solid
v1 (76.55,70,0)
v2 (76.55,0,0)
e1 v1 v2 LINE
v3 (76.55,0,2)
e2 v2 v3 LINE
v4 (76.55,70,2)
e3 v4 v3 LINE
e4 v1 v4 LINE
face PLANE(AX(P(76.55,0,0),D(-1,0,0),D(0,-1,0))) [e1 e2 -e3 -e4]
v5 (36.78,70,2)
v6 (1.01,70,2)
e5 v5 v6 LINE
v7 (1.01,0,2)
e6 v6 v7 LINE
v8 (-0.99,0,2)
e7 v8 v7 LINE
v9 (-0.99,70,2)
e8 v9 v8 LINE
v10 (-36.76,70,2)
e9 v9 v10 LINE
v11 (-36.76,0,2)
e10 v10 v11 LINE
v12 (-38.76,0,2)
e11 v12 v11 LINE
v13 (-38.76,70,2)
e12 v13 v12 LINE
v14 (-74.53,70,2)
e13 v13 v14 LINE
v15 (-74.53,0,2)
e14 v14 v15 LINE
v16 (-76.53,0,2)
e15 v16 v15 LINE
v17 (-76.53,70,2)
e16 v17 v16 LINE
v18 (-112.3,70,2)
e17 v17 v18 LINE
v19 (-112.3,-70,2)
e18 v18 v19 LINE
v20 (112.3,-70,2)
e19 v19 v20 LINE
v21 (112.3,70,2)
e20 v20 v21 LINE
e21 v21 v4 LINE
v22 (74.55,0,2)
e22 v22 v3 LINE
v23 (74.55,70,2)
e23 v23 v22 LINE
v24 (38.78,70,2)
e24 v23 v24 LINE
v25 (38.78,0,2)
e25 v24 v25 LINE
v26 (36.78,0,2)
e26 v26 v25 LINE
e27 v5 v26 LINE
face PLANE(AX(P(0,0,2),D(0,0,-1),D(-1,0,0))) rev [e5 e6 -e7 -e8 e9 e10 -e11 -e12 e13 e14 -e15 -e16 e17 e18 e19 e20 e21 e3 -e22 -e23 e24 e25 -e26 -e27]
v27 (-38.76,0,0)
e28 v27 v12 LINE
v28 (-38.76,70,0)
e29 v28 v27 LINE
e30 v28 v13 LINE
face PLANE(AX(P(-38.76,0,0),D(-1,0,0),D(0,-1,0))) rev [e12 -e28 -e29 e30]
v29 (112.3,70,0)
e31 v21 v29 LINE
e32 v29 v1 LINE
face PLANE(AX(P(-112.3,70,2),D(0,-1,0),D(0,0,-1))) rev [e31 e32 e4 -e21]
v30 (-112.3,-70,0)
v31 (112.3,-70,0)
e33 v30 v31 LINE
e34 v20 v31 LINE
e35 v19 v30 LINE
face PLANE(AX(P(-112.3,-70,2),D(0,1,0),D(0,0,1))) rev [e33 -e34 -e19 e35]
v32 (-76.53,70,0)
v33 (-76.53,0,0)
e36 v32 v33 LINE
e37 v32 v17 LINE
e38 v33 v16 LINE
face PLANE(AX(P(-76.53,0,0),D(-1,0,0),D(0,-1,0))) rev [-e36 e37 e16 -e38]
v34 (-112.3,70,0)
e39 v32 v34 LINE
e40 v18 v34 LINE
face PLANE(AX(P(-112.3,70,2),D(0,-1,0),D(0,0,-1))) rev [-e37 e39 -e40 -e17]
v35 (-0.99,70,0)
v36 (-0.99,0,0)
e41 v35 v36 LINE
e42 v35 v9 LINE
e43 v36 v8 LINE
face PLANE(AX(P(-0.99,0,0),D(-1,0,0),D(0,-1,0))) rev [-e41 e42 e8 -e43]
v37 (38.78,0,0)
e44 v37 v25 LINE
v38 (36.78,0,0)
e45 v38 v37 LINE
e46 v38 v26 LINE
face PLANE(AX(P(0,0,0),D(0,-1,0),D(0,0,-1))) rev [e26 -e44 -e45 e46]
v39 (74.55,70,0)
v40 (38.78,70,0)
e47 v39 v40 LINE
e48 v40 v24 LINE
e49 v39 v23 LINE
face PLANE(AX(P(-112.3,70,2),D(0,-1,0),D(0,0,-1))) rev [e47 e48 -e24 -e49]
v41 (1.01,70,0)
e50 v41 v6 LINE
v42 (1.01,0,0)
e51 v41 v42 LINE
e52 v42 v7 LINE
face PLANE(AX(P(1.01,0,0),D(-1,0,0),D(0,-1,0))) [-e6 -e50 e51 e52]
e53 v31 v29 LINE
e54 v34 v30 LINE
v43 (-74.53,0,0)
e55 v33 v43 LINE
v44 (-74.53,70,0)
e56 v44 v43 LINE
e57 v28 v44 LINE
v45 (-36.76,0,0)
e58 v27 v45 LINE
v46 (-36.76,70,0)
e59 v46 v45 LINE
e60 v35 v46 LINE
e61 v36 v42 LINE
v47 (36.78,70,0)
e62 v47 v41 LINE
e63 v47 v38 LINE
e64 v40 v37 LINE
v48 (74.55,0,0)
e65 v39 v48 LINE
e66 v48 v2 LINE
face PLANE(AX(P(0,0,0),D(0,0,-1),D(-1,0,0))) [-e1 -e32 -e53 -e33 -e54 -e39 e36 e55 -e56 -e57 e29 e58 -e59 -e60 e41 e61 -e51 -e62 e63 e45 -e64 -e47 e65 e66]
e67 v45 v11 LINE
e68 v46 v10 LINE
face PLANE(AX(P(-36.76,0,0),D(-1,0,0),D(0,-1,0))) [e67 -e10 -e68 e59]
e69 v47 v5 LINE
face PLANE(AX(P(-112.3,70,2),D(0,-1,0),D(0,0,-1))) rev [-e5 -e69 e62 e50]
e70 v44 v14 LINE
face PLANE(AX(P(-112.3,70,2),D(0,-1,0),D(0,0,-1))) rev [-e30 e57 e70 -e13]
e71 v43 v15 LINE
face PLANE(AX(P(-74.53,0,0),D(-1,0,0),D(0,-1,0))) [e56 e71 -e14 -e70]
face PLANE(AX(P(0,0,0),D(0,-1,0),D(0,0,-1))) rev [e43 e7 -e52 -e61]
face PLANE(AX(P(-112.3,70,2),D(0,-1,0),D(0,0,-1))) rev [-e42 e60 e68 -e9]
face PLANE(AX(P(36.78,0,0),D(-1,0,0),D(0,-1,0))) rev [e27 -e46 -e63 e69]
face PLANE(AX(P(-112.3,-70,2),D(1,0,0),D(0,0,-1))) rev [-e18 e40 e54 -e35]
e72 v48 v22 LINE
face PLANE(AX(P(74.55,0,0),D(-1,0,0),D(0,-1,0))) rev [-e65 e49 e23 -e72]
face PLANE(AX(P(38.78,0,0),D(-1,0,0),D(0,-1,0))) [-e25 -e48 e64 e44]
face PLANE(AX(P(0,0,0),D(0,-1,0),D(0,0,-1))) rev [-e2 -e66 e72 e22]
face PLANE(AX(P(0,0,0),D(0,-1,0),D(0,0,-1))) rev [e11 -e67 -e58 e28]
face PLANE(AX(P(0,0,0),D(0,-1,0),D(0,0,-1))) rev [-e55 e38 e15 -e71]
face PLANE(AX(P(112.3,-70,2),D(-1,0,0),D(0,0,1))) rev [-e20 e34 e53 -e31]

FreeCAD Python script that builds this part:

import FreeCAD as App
import Part
import Sketcher
from FreeCAD import Vector
Q = App.Units.Quantity


def add_polygon(sketch, points):
    """Adds a closed chain of lines whose ends are joined by coincident constraints."""
    first, n = sketch.GeometryCount, len(points)
    for a, b in zip(points, points[1:] + points[:1]):
        sketch.addGeometry(Part.LineSegment(App.Vector(*a, 0), App.Vector(*b, 0)), False)
    for i in range(n):
        sketch.addConstraint(Sketcher.Constraint("Coincident", first + i, 2, first + (i + 1) % n, 1))

doc = App.newDocument("Part")
params = doc.addObject("Spreadsheet::Sheet", "Params")
for row, (alias, value) in enumerate([
    ("sketch1_height", "140 mm"),
    ("sketch1_width", "224.6 mm"),
    ("pad1_length", "2 mm"),
    ("sketch2_width", "2 mm"),
    ("sketch2_height", "70 mm"),
], start=1):
    params.set(f"A{row}", alias)
    params.set(f"B{row}", "=" + value)
    params.setAlias(f"B{row}", alias)

body = doc.addObject("PartDesign::Body", "Body")

# Sketch on XY plane
sketch1 = body.newObject("Sketcher::SketchObject", "Sketch")
sketch1.AttachmentSupport = (doc.getObject("XY_Plane"), [""])
sketch1.MapMode = "FlatFace"
add_polygon(sketch1, [(-112, 70), (-112, -70), (112, -70), (112, 70)])  # lines 0-3
sketch1.addConstraint([
    Sketcher.Constraint("Vertical", 0),
    Sketcher.Constraint("Horizontal", 1),
    Sketcher.Constraint("Vertical", 2),
    Sketcher.Constraint("Horizontal", 3),
    Sketcher.Constraint("Symmetric", 0, 2, 2, 2, -1, 1),
    Sketcher.Constraint("DistanceY", 0, 2, 0, 1, Q("140 mm")),
    Sketcher.Constraint("DistanceX", 1, 1, 1, 2, Q("224.6 mm")),
])
sketch1.setExpression("Constraints[9]", "Params.sketch1_height")
sketch1.setExpression("Constraints[10]", "Params.sketch1_width")
pad1 = body.newObject("PartDesign::Pad", "Pad")
pad1.Profile = sketch1
pad1.setExpression("Length", "Params.pad1_length")

# Sketch on XY plane
sketch2 = body.newObject("Sketcher::SketchObject", "Sketch001")
sketch2.AttachmentSupport = (doc.getObject("XY_Plane"), [""])
sketch2.MapMode = "FlatFace"
sketch2.AttachmentOffset = App.Placement(Vector(0, 0, 2), App.Rotation())
add_polygon(sketch2, [(-76.5, 70), (-76.5, 0), (-74.5, 0), (-74.5, 70)])  # lines 0-3
add_polygon(sketch2, [(-38.8, 70), (-38.8, 0), (-36.8, 0), (-36.8, 70)])  # lines 4-7
add_polygon(sketch2, [(-1, 70), (-1, 0), (1, 0), (1, 70)])  # lines 8-11
add_polygon(sketch2, [(74.5, 70), (74.5, 0), (76.5, 0), (76.5, 70)])  # lines 12-15
add_polygon(sketch2, [(36.8, 70), (36.8, 0), (38.8, 0), (38.8, 70)])  # lines 16-19
sketch2.addConstraint([
    Sketcher.Constraint("Vertical", 0),
    Sketcher.Constraint("Horizontal", 1),
    Sketcher.Constraint("Vertical", 2),
    Sketcher.Constraint("Horizontal", 3),
    Sketcher.Constraint("Vertical", 4),
    Sketcher.Constraint("Horizontal", 5),
    Sketcher.Constraint("Vertical", 6),
    Sketcher.Constraint("Horizontal", 7),
    Sketcher.Constraint("Vertical", 8),
    Sketcher.Constraint("Horizontal", 9),
    Sketcher.Constraint("Vertical", 10),
    Sketcher.Constraint("Horizontal", 11),
    Sketcher.Constraint("Vertical", 12),
    Sketcher.Constraint("Horizontal", 13),
    Sketcher.Constraint("Vertical", 14),
    Sketcher.Constraint("Horizontal", 15),
    Sketcher.Constraint("Vertical", 16),
    Sketcher.Constraint("Horizontal", 17),
    Sketcher.Constraint("Vertical", 18),
    Sketcher.Constraint("Horizontal", 19),
    Sketcher.Constraint("PointOnObject", 0, 2, -1),
    Sketcher.Constraint("PointOnObject", 4, 2, -1),
    Sketcher.Constraint("PointOnObject", 8, 2, -1),
    Sketcher.Constraint("PointOnObject", 12, 2, -1),
    Sketcher.Constraint("PointOnObject", 16, 2, -1),
    Sketcher.Constraint("Horizontal", 3, 2, 6, 2),
    Sketcher.Constraint("Horizontal", 7, 2, 10, 2),
    Sketcher.Constraint("Horizontal", 11, 2, 14, 2),
    Sketcher.Constraint("Horizontal", 15, 2, 18, 2),
    Sketcher.Constraint("Equal", 3, 5),
    Sketcher.Constraint("Equal", 7, 9),
    Sketcher.Constraint("Equal", 11, 13),
    Sketcher.Constraint("Equal", 15, 17),
    Sketcher.Constraint("DistanceX", 1, 1, 1, 2, Q("2 mm")),
    Sketcher.Constraint("DistanceY", 0, 2, 0, 1, Q("70 mm")),
    Sketcher.Constraint("DistanceX", 0, 2, -1, 1, Q("76.53 mm")),
    Sketcher.Constraint("DistanceX", 4, 2, -1, 1, Q("38.76 mm")),
    Sketcher.Constraint("DistanceX", 8, 2, -1, 1, Q("0.99 mm")),
    Sketcher.Constraint("DistanceX", -1, 1, 12, 2, Q("74.55 mm")),
    Sketcher.Constraint("DistanceX", -1, 1, 16, 2, Q("36.78 mm")),
])
sketch2.setExpression("Constraints[53]", "Params.sketch2_width")
sketch2.setExpression("Constraints[54]", "Params.sketch2_height")
pocket1 = body.newObject("PartDesign::Pocket", "Pocket")
pocket1.Profile = sketch2
pocket1.Type = "ThroughAll"

doc.recompute()
